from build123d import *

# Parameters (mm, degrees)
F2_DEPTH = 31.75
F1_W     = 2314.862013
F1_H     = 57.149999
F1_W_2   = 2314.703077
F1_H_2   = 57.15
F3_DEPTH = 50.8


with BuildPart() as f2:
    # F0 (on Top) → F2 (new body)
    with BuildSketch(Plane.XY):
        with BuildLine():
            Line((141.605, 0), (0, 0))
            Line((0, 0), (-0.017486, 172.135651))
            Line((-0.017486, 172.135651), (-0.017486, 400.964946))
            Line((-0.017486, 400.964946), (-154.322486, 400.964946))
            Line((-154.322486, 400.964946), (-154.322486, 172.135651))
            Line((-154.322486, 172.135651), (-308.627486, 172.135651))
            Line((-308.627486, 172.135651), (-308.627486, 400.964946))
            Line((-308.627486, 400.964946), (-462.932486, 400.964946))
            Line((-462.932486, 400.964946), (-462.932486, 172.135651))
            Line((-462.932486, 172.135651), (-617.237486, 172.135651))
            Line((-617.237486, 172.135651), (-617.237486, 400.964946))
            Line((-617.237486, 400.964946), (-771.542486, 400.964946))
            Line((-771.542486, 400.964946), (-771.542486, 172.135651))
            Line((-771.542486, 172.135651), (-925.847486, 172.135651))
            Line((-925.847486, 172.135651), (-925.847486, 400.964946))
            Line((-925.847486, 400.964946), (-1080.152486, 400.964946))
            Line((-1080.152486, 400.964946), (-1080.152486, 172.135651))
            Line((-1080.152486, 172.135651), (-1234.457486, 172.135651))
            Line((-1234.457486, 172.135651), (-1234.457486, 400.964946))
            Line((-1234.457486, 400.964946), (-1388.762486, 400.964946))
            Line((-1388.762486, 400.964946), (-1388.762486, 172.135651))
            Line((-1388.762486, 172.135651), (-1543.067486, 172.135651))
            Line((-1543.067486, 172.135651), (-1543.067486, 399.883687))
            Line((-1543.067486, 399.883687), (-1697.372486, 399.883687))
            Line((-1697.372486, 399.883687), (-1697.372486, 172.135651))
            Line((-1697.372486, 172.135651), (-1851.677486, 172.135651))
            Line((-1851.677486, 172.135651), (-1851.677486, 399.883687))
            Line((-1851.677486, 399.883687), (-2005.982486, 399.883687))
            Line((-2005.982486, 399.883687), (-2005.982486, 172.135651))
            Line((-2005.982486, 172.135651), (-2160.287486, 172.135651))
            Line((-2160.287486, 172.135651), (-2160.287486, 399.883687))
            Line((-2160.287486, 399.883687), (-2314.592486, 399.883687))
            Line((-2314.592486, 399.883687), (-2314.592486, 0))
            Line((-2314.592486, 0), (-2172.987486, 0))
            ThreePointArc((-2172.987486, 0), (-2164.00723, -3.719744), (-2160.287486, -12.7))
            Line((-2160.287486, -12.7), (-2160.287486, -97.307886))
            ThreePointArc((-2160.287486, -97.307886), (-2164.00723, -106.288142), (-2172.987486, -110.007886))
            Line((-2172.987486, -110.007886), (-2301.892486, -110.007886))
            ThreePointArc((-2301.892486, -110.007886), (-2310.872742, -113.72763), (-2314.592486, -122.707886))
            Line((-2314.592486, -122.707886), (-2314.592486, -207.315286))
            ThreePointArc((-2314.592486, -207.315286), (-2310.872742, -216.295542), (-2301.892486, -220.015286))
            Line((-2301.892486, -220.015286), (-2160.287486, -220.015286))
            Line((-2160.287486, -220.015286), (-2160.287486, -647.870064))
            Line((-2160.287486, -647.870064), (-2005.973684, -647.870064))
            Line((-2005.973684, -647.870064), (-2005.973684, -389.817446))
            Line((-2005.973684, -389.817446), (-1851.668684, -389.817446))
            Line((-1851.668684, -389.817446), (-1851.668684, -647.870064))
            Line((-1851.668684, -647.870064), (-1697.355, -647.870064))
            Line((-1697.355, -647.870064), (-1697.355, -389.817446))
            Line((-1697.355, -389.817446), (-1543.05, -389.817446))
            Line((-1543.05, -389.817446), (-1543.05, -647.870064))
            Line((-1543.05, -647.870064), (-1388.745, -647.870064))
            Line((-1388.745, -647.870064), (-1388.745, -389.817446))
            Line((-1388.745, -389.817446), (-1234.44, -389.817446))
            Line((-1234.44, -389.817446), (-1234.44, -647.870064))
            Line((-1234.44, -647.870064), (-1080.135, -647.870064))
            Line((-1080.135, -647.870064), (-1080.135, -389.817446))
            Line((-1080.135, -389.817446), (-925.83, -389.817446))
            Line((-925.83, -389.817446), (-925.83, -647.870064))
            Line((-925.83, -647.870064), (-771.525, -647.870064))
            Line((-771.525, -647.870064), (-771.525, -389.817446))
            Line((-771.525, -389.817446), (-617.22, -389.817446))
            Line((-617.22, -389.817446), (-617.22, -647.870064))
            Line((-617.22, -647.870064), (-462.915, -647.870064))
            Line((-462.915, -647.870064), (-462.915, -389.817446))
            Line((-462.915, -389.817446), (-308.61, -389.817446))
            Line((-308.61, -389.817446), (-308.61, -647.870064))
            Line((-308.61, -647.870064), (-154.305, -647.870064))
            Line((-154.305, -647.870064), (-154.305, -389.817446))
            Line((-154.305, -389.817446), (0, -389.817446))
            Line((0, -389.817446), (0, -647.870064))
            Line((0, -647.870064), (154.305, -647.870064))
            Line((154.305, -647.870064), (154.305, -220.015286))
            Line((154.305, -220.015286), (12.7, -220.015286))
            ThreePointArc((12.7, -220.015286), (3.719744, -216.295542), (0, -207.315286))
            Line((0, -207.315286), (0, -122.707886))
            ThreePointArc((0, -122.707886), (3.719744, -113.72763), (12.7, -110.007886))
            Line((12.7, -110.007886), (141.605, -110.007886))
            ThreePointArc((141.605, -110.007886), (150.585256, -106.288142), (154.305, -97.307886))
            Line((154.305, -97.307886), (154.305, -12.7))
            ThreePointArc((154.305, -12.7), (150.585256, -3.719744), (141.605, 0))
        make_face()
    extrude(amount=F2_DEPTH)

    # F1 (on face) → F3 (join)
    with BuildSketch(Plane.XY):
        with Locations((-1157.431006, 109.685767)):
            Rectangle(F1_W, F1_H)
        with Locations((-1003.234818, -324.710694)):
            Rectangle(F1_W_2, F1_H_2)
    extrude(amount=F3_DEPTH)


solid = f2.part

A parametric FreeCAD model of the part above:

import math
import FreeCAD as App
import Part
import Sketcher
from FreeCAD import Vector
Q = App.Units.Quantity


def add_polygon(sketch, points):
    """Adds a closed chain of lines whose ends are joined by coincident constraints."""
    first, n = sketch.GeometryCount, len(points)
    for a, b in zip(points, points[1:] + points[:1]):
        sketch.addGeometry(Part.LineSegment(App.Vector(*a, 0), App.Vector(*b, 0)), False)
    for i in range(n):
        sketch.addConstraint(Sketcher.Constraint("Coincident", first + i, 2, first + (i + 1) % n, 1))

doc = App.newDocument("Part")
body = doc.addObject("PartDesign::Body", "Body")

sketch1 = doc.addObject("Sketcher::SketchObject", "Sketch")
body.addObject(sketch1)
sketch1.AttachmentSupport = (doc.XY_Plane, [""])
sketch1.MapMode = "FlatFace"
sketch1.addGeometry([
    Part.LineSegment(Vector(142, 0, 0), Vector(0, 0, 0)),
    Part.LineSegment(Vector(0, 0, 0), Vector(0, 172, 0)),
    Part.LineSegment(Vector(0, 172, 0), Vector(0, 401, 0)),
    Part.LineSegment(Vector(0, 401, 0), Vector(-154, 401, 0)),
    Part.LineSegment(Vector(-154, 401, 0), Vector(-154, 172, 0)),
    Part.LineSegment(Vector(-154, 172, 0), Vector(-309, 172, 0)),
    Part.LineSegment(Vector(-309, 172, 0), Vector(-309, 401, 0)),
    Part.LineSegment(Vector(-309, 401, 0), Vector(-463, 401, 0)),
    Part.LineSegment(Vector(-463, 401, 0), Vector(-463, 172, 0)),
    Part.LineSegment(Vector(-463, 172, 0), Vector(-617, 172, 0)),
    Part.LineSegment(Vector(-617, 172, 0), Vector(-617, 401, 0)),
    Part.LineSegment(Vector(-617, 401, 0), Vector(-772, 401, 0)),
    Part.LineSegment(Vector(-772, 401, 0), Vector(-772, 172, 0)),
    Part.LineSegment(Vector(-772, 172, 0), Vector(-926, 172, 0)),
    Part.LineSegment(Vector(-926, 172, 0), Vector(-926, 401, 0)),
    Part.LineSegment(Vector(-926, 401, 0), Vector(-1080, 401, 0)),
    Part.LineSegment(Vector(-1080, 401, 0), Vector(-1080, 172, 0)),
    Part.LineSegment(Vector(-1080, 172, 0), Vector(-1234, 172, 0)),
    Part.LineSegment(Vector(-1234, 172, 0), Vector(-1234, 401, 0)),
    Part.LineSegment(Vector(-1234, 401, 0), Vector(-1389, 401, 0)),
    Part.LineSegment(Vector(-1389, 401, 0), Vector(-1389, 172, 0)),
    Part.LineSegment(Vector(-1389, 172, 0), Vector(-1543, 172, 0)),
    Part.LineSegment(Vector(-1543, 172, 0), Vector(-1543, 400, 0)),
    Part.LineSegment(Vector(-1543, 400, 0), Vector(-1697, 400, 0)),
    Part.LineSegment(Vector(-1697, 400, 0), Vector(-1697, 172, 0)),
    Part.LineSegment(Vector(-1697, 172, 0), Vector(-1852, 172, 0)),
    Part.LineSegment(Vector(-1852, 172, 0), Vector(-1852, 400, 0)),
    Part.LineSegment(Vector(-1852, 400, 0), Vector(-2006, 400, 0)),
    Part.LineSegment(Vector(-2006, 400, 0), Vector(-2006, 172, 0)),
    Part.LineSegment(Vector(-2006, 172, 0), Vector(-2160, 172, 0)),
    Part.LineSegment(Vector(-2160, 172, 0), Vector(-2160, 400, 0)),
    Part.LineSegment(Vector(-2160, 400, 0), Vector(-2315, 400, 0)),
    Part.LineSegment(Vector(-2315, 400, 0), Vector(-2315, 0, 0)),
    Part.LineSegment(Vector(-2315, 0, 0), Vector(-2173, 0, 0)),
    Part.ArcOfCircle(Part.Circle(Vector(-2173, -13, 0), Vector(0, 0, 1), 13), math.radians(0), math.radians(90)),
    Part.LineSegment(Vector(-2160, -13, 0), Vector(-2160, -97, 0)),
    Part.ArcOfCircle(Part.Circle(Vector(-2173, -97, 0), Vector(0, 0, 1), 13), math.radians(-90), math.radians(0)),
    Part.LineSegment(Vector(-2173, -110, 0), Vector(-2302, -110, 0)),
    Part.ArcOfCircle(Part.Circle(Vector(-2302, -123, 0), Vector(0, 0, 1), 13), math.radians(90), math.radians(180)),
    Part.LineSegment(Vector(-2315, -123, 0), Vector(-2315, -207, 0)),
    Part.ArcOfCircle(Part.Circle(Vector(-2302, -207, 0), Vector(0, 0, 1), 13), math.radians(-180), math.radians(-90)),
    Part.LineSegment(Vector(-2302, -220, 0), Vector(-2160, -220, 0)),
    Part.LineSegment(Vector(-2160, -220, 0), Vector(-2160, -648, 0)),
    Part.LineSegment(Vector(-2160, -648, 0), Vector(-2006, -648, 0)),
    Part.LineSegment(Vector(-2006, -648, 0), Vector(-2006, -390, 0)),
    Part.LineSegment(Vector(-2006, -390, 0), Vector(-1852, -390, 0)),
    Part.LineSegment(Vector(-1852, -390, 0), Vector(-1852, -648, 0)),
    Part.LineSegment(Vector(-1852, -648, 0), Vector(-1697, -648, 0)),
    Part.LineSegment(Vector(-1697, -648, 0), Vector(-1697, -390, 0)),
    Part.LineSegment(Vector(-1697, -390, 0), Vector(-1543, -390, 0)),
    Part.LineSegment(Vector(-1543, -390, 0), Vector(-1543, -648, 0)),
    Part.LineSegment(Vector(-1543, -648, 0), Vector(-1389, -648, 0)),
    Part.LineSegment(Vector(-1389, -648, 0), Vector(-1389, -390, 0)),
    Part.LineSegment(Vector(-1389, -390, 0), Vector(-1234, -390, 0)),
    Part.LineSegment(Vector(-1234, -390, 0), Vector(-1234, -648, 0)),
    Part.LineSegment(Vector(-1234, -648, 0), Vector(-1080, -648, 0)),
    Part.LineSegment(Vector(-1080, -648, 0), Vector(-1080, -390, 0)),
    Part.LineSegment(Vector(-1080, -390, 0), Vector(-926, -390, 0)),
    Part.LineSegment(Vector(-926, -390, 0), Vector(-926, -648, 0)),
    Part.LineSegment(Vector(-926, -648, 0), Vector(-772, -648, 0)),
    Part.LineSegment(Vector(-772, -648, 0), Vector(-772, -390, 0)),
    Part.LineSegment(Vector(-772, -390, 0), Vector(-617, -390, 0)),
    Part.LineSegment(Vector(-617, -390, 0), Vector(-617, -648, 0)),
    Part.LineSegment(Vector(-617, -648, 0), Vector(-463, -648, 0)),
    Part.LineSegment(Vector(-463, -648, 0), Vector(-463, -390, 0)),
    Part.LineSegment(Vector(-463, -390, 0), Vector(-309, -390, 0)),
    Part.LineSegment(Vector(-309, -390, 0), Vector(-309, -648, 0)),
    Part.LineSegment(Vector(-309, -648, 0), Vector(-154, -648, 0)),
    Part.LineSegment(Vector(-154, -648, 0), Vector(-154, -390, 0)),
    Part.LineSegment(Vector(-154, -390, 0), Vector(0, -390, 0)),
    Part.LineSegment(Vector(0, -390, 0), Vector(0, -648, 0)),
    Part.LineSegment(Vector(0, -648, 0), Vector(154, -648, 0)),
    Part.LineSegment(Vector(154, -648, 0), Vector(154, -220, 0)),
    Part.LineSegment(Vector(154, -220, 0), Vector(13, -220, 0)),
    Part.ArcOfCircle(Part.Circle(Vector(13, -207, 0), Vector(0, 0, 1), 13), math.radians(-180), math.radians(-90)),
    Part.LineSegment(Vector(0, -207, 0), Vector(0, -123, 0)),
    Part.ArcOfCircle(Part.Circle(Vector(13, -123, 0), Vector(0, 0, 1), 13), math.radians(90), math.radians(180)),
    Part.LineSegment(Vector(13, -110, 0), Vector(142, -110, 0)),
    Part.ArcOfCircle(Part.Circle(Vector(142, -97, 0), Vector(0, 0, 1), 13), math.radians(-90), math.radians(0)),
    Part.LineSegment(Vector(154, -97, 0), Vector(154, -13, 0)),
    Part.ArcOfCircle(Part.Circle(Vector(142, -13, 0), Vector(0, 0, 1), 13), math.radians(0), math.radians(90)),
], False)
sketch1.addConstraint([
    Sketcher.Constraint("Coincident", 0, 2, 1, 1),
    Sketcher.Constraint("Coincident", 1, 2, 2, 1),
    Sketcher.Constraint("Coincident", 2, 2, 3, 1),
    Sketcher.Constraint("Coincident", 3, 2, 4, 1),
    Sketcher.Constraint("Coincident", 4, 2, 5, 1),
    Sketcher.Constraint("Coincident", 5, 2, 6, 1),
    Sketcher.Constraint("Coincident", 6, 2, 7, 1),
    Sketcher.Constraint("Coincident", 7, 2, 8, 1),
    Sketcher.Constraint("Coincident", 8, 2, 9, 1),
    Sketcher.Constraint("Coincident", 9, 2, 10, 1),
    Sketcher.Constraint("Coincident", 10, 2, 11, 1),
    Sketcher.Constraint("Coincident", 11, 2, 12, 1),
    Sketcher.Constraint("Coincident", 12, 2, 13, 1),
    Sketcher.Constraint("Coincident", 13, 2, 14, 1),
    Sketcher.Constraint("Coincident", 14, 2, 15, 1),
    Sketcher.Constraint("Coincident", 15, 2, 16, 1),
    Sketcher.Constraint("Coincident", 16, 2, 17, 1),
    Sketcher.Constraint("Coincident", 17, 2, 18, 1),
    Sketcher.Constraint("Coincident", 18, 2, 19, 1),
    Sketcher.Constraint("Coincident", 19, 2, 20, 1),
    Sketcher.Constraint("Coincident", 20, 2, 21, 1),
    Sketcher.Constraint("Coincident", 21, 2, 22, 1),
    Sketcher.Constraint("Coincident", 22, 2, 23, 1),
    Sketcher.Constraint("Coincident", 23, 2, 24, 1),
    Sketcher.Constraint("Coincident", 24, 2, 25, 1),
    Sketcher.Constraint("Coincident", 25, 2, 26, 1),
    Sketcher.Constraint("Coincident", 26, 2, 27, 1),
    Sketcher.Constraint("Coincident", 27, 2, 28, 1),
    Sketcher.Constraint("Coincident", 28, 2, 29, 1),
    Sketcher.Constraint("Coincident", 29, 2, 30, 1),
    Sketcher.Constraint("Coincident", 30, 2, 31, 1),
    Sketcher.Constraint("Coincident", 31, 2, 32, 1),
    Sketcher.Constraint("Coincident", 32, 2, 33, 1),
    Sketcher.Constraint("Tangent", 33, 2, 34, 2),
    Sketcher.Constraint("Tangent", 34, 1, 35, 1),
    Sketcher.Constraint("Tangent", 35, 2, 36, 2),
    Sketcher.Constraint("Tangent", 36, 1, 37, 1),
    Sketcher.Constraint("Tangent", 37, 2, 38, 1),
    Sketcher.Constraint("Tangent", 38, 2, 39, 1),
    Sketcher.Constraint("Tangent", 39, 2, 40, 1),
    Sketcher.Constraint("Tangent", 40, 2, 41, 1),
    Sketcher.Constraint("Coincident", 41, 2, 42, 1),
    Sketcher.Constraint("Coincident", 42, 2, 43, 1),
    Sketcher.Constraint("Coincident", 43, 2, 44, 1),
    Sketcher.Constraint("Coincident", 44, 2, 45, 1),
    Sketcher.Constraint("Coincident", 45, 2, 46, 1),
    Sketcher.Constraint("Coincident", 46, 2, 47, 1),
    Sketcher.Constraint("Coincident", 47, 2, 48, 1),
    Sketcher.Constraint("Coincident", 48, 2, 49, 1),
    Sketcher.Constraint("Coincident", 49, 2, 50, 1),
    Sketcher.Constraint("Coincident", 50, 2, 51, 1),
    Sketcher.Constraint("Coincident", 51, 2, 52, 1),
    Sketcher.Constraint("Coincident", 52, 2, 53, 1),
    Sketcher.Constraint("Coincident", 53, 2, 54, 1),
    Sketcher.Constraint("Coincident", 54, 2, 55, 1),
    Sketcher.Constraint("Coincident", 55, 2, 56, 1),
    Sketcher.Constraint("Coincident", 56, 2, 57, 1),
    Sketcher.Constraint("Coincident", 57, 2, 58, 1),
    Sketcher.Constraint("Coincident", 58, 2, 59, 1),
    Sketcher.Constraint("Coincident", 59, 2, 60, 1),
    Sketcher.Constraint("Coincident", 60, 2, 61, 1),
    Sketcher.Constraint("Coincident", 61, 2, 62, 1),
    Sketcher.Constraint("Coincident", 62, 2, 63, 1),
    Sketcher.Constraint("Coincident", 63, 2, 64, 1),
    Sketcher.Constraint("Coincident", 64, 2, 65, 1),
    Sketcher.Constraint("Coincident", 65, 2, 66, 1),
    Sketcher.Constraint("Coincident", 66, 2, 67, 1),
    Sketcher.Constraint("Coincident", 67, 2, 68, 1),
    Sketcher.Constraint("Coincident", 68, 2, 69, 1),
    Sketcher.Constraint("Coincident", 69, 2, 70, 1),
    Sketcher.Constraint("Coincident", 70, 2, 71, 1),
    Sketcher.Constraint("Coincident", 71, 2, 72, 1),
    Sketcher.Constraint("Coincident", 72, 2, 73, 1),
    Sketcher.Constraint("Tangent", 73, 2, 74, 2),
    Sketcher.Constraint("Tangent", 74, 1, 75, 1),
    Sketcher.Constraint("Tangent", 75, 2, 76, 2),
    Sketcher.Constraint("Tangent", 76, 1, 77, 1),
    Sketcher.Constraint("Tangent", 77, 2, 78, 1),
    Sketcher.Constraint("Tangent", 78, 2, 79, 1),
    Sketcher.Constraint("Tangent", 79, 2, 80, 1),
    Sketcher.Constraint("Tangent", 80, 2, 0, 1),
    Sketcher.Constraint("Horizontal", 0),
    Sketcher.Constraint("Vertical", 2),
    Sketcher.Constraint("Horizontal", 3),
    Sketcher.Constraint("Vertical", 4),
    Sketcher.Constraint("Horizontal", 5),
    Sketcher.Constraint("Vertical", 6),
    Sketcher.Constraint("Horizontal", 7),
    Sketcher.Constraint("Vertical", 8),
    Sketcher.Constraint("Horizontal", 9),
    Sketcher.Constraint("Vertical", 10),
    Sketcher.Constraint("Horizontal", 11),
    Sketcher.Constraint("Vertical", 12),
    Sketcher.Constraint("Horizontal", 13),
    Sketcher.Constraint("Vertical", 14),
    Sketcher.Constraint("Horizontal", 15),
    Sketcher.Constraint("Vertical", 16),
    Sketcher.Constraint("Horizontal", 17),
    Sketcher.Constraint("Vertical", 18),
    Sketcher.Constraint("Horizontal", 19),
    Sketcher.Constraint("Vertical", 20),
    Sketcher.Constraint("Horizontal", 21),
    Sketcher.Constraint("Vertical", 22),
    Sketcher.Constraint("Horizontal", 23),
    Sketcher.Constraint("Vertical", 24),
    Sketcher.Constraint("Horizontal", 25),
    Sketcher.Constraint("Vertical", 26),
    Sketcher.Constraint("Horizontal", 27),
    Sketcher.Constraint("Vertical", 28),
    Sketcher.Constraint("Horizontal", 29),
    Sketcher.Constraint("Vertical", 30),
    Sketcher.Constraint("Horizontal", 31),
    Sketcher.Constraint("Vertical", 32),
    Sketcher.Constraint("Horizontal", 33),
    Sketcher.Constraint("Vertical", 35),
    Sketcher.Constraint("Horizontal", 37),
    Sketcher.Constraint("Vertical", 39),
    Sketcher.Constraint("Horizontal", 41),
    Sketcher.Constraint("Vertical", 42),
    Sketcher.Constraint("Horizontal", 43),
    Sketcher.Constraint("Vertical", 44),
    Sketcher.Constraint("Horizontal", 45),
    Sketcher.Constraint("Vertical", 46),
    Sketcher.Constraint("Horizontal", 47),
    Sketcher.Constraint("Vertical", 48),
    Sketcher.Constraint("Horizontal", 49),
    Sketcher.Constraint("Vertical", 50),
    Sketcher.Constraint("Horizontal", 51),
    Sketcher.Constraint("Vertical", 52),
    Sketcher.Constraint("Horizontal", 53),
    Sketcher.Constraint("Vertical", 54),
    Sketcher.Constraint("Horizontal", 55),
    Sketcher.Constraint("Vertical", 56),
    Sketcher.Constraint("Horizontal", 57),
    Sketcher.Constraint("Vertical", 58),
    Sketcher.Constraint("Horizontal", 59),
    Sketcher.Constraint("Vertical", 60),
    Sketcher.Constraint("Horizontal", 61),
    Sketcher.Constraint("Vertical", 62),
    Sketcher.Constraint("Horizontal", 63),
    Sketcher.Constraint("Vertical", 64),
    Sketcher.Constraint("Horizontal", 65),
    Sketcher.Constraint("Vertical", 66),
    Sketcher.Constraint("Horizontal", 67),
    Sketcher.Constraint("Vertical", 68),
    Sketcher.Constraint("Horizontal", 69),
    Sketcher.Constraint("Vertical", 70),
    Sketcher.Constraint("Horizontal", 71),
    Sketcher.Constraint("Vertical", 72),
    Sketcher.Constraint("Horizontal", 73),
    Sketcher.Constraint("Vertical", 75),
    Sketcher.Constraint("Horizontal", 77),
    Sketcher.Constraint("Vertical", 79),
    Sketcher.Constraint("Coincident", 0, 2, -1, 1),
    Sketcher.Constraint("Equal", 34, 36),
    Sketcher.Constraint("Equal", 36, 38),
    Sketcher.Constraint("Equal", 38, 40),
    Sketcher.Constraint("Equal", 40, 74),
    Sketcher.Constraint("Equal", 74, 76),
    Sketcher.Constraint("Equal", 76, 78),
    Sketcher.Constraint("Equal", 78, 80),
    Sketcher.Constraint("Symmetric", 67, 2, 71, 2, -2),
    Sketcher.Constraint("PointOnObject", 32, 2, -1),
    Sketcher.Constraint("PointOnObject", 69, 2, -2),
    Sketcher.Constraint("PointOnObject", 74, 1, -2),
    Sketcher.Constraint("Horizontal", 40, 3, 74, 3),
    Sketcher.Constraint("Horizontal", 38, 3, 76, 3),
    Sketcher.Constraint("Horizontal", 1, 2, 4, 2),
    Sketcher.Constraint("Horizontal", 3, 2, 6, 2),
    Sketcher.Constraint("Horizontal", 5, 2, 8, 2),
    Sketcher.Constraint("Horizontal", 7, 2, 10, 2),
    Sketcher.Constraint("Horizontal", 9, 2, 12, 2),
    Sketcher.Constraint("Horizontal", 11, 2, 14, 2),
    Sketcher.Constraint("Horizontal", 13, 2, 16, 2),
    Sketcher.Constraint("Horizontal", 15, 2, 18, 2),
    Sketcher.Constraint("Horizontal", 17, 2, 20, 2),
    Sketcher.Constraint("Horizontal", 21, 2, 24, 2),
    Sketcher.Constraint("Horizontal", 23, 2, 26, 2),
    Sketcher.Constraint("Horizontal", 25, 2, 28, 2),
    Sketcher.Constraint("Horizontal", 27, 2, 30, 2),
    Sketcher.Constraint("Horizontal", 43, 2, 46, 2),
    Sketcher.Constraint("Horizontal", 45, 2, 48, 2),
    Sketcher.Constraint("Horizontal", 47, 2, 50, 2),
    Sketcher.Constraint("Horizontal", 49, 2, 52, 2),
    Sketcher.Constraint("Horizontal", 51, 2, 54, 2),
    Sketcher.Constraint("Horizontal", 53, 2, 56, 2),
    Sketcher.Constraint("Horizontal", 55, 2, 58, 2),
    Sketcher.Constraint("Horizontal", 57, 2, 60, 2),
    Sketcher.Constraint("Horizontal", 59, 2, 62, 2),
    Sketcher.Constraint("Horizontal", 61, 2, 64, 2),
    Sketcher.Constraint("Horizontal", 63, 2, 66, 2),
    Sketcher.Constraint("Horizontal", 65, 2, 68, 2),
    Sketcher.Constraint("Vertical", 30, 2, 34, 1),
    Sketcher.Constraint("Vertical", 32, 2, 38, 2),
    Sketcher.Constraint("Vertical", 35, 2, 41, 2),
    Sketcher.Constraint("Vertical", 72, 2, 78, 2),
    Sketcher.Constraint("Equal", 3, 5),
    Sketcher.Constraint("Equal", 5, 7),
    Sketcher.Constraint("Equal", 7, 9),
    Sketcher.Constraint("Equal", 9, 11),
    Sketcher.Constraint("Equal", 11, 13),
    Sketcher.Constraint("Equal", 13, 15),
    Sketcher.Constraint("Equal", 15, 17),
    Sketcher.Constraint("Equal", 17, 19),
    Sketcher.Constraint("Equal", 19, 21),
    Sketcher.Constraint("Equal", 21, 23),
    Sketcher.Constraint("Equal", 23, 25),
    Sketcher.Constraint("Equal", 25, 27),
    Sketcher.Constraint("Equal", 27, 29),
    Sketcher.Constraint("Equal", 29, 31),
    Sketcher.Constraint("Equal", 0, 33),
    Sketcher.Constraint("Equal", 31, 45),
    Sketcher.Constraint("Equal", 45, 49),
    Sketcher.Constraint("Equal", 49, 51),
    Sketcher.Constraint("Equal", 51, 53),
    Sketcher.Constraint("Equal", 53, 55),
    Sketcher.Constraint("Equal", 55, 57),
    Sketcher.Constraint("Equal", 57, 59),
    Sketcher.Constraint("Equal", 59, 61),
    Sketcher.Constraint("Equal", 61, 63),
    Sketcher.Constraint("Equal", 63, 65),
    Sketcher.Constraint("Equal", 65, 67),
    Sketcher.Constraint("Radius", 34, Q("0.5 in")),
    Sketcher.Constraint("DistanceX", 53, 2, -1, 1, Q("48.6 in")),
    Sketcher.Constraint("DistanceY", 39, 2, 39, 1, Q("3.331 in")),
    Sketcher.Constraint("Distance", 1, Q("172.135652 mm")),
    Sketcher.Constraint("DistanceX", 43, 1, 43, 2, Q("154.313802 mm")),
    Sketcher.Constraint("DistanceX", 47, 1, 47, 2, Q("154.313684 mm")),
    Sketcher.Constraint("DistanceY", 2, 1, 2, 2, Q("228.829295 mm")),
    Sketcher.Constraint("DistanceY", 22, 1, 22, 2, Q("227.748036 mm")),
    Sketcher.Constraint("DistanceY", 35, 2, 35, 1, Q("84.607886 mm")),
    Sketcher.Constraint("DistanceY", 42, 2, 42, 1, Q("427.854778 mm")),
    Sketcher.Constraint("DistanceY", 44, 1, 44, 2, Q("258.052618 mm")),
])
pad1 = doc.addObject("PartDesign::Pad", "Pad")
body.addObject(pad1)
pad1.Profile = sketch1
pad1.Length = Q("1.25 in")

sketch2 = doc.addObject("Sketcher::SketchObject", "Sketch001")
body.addObject(sketch2)
sketch2.AttachmentSupport = (doc.XY_Plane, [""])
sketch2.MapMode = "FlatFace"
add_polygon(sketch2, [(-2315, 138), (-2315, 81), (0, 81), (0, 138)])
add_polygon(sketch2, [(-2161, -296), (-2161, -353), (154, -353), (154, -296)])
sketch2.addConstraint([
    Sketcher.Constraint("Vertical", 0),
    Sketcher.Constraint("Horizontal", 1),
    Sketcher.Constraint("Vertical", 2),
    Sketcher.Constraint("Horizontal", 3),
    Sketcher.Constraint("Vertical", 4),
    Sketcher.Constraint("Horizontal", 5),
    Sketcher.Constraint("Vertical", 6),
    Sketcher.Constraint("Horizontal", 7),
    Sketcher.Constraint("PointOnObject", 1, 2, -2),
    Sketcher.Constraint("Equal", 2, 4),
    Sketcher.Constraint("DistanceY", 0, 2, 0, 1, Q("2.25 in")),
    Sketcher.Constraint("DistanceX", 1, 1, 1, 2, Q("2314.862013 mm")),
    Sketcher.Constraint("DistanceX", 5, 1, 5, 2, Q("2314.703077 mm")),
    Sketcher.Constraint("DistanceX", -1, 1, 5, 2, Q("154.116721 mm")),
    Sketcher.Constraint("DistanceY", 4, 2, 0, 2, Q("434.396461 mm")),
    Sketcher.Constraint("DistanceY", -1, 1, 0, 2, Q("81.110767 mm")),
])
pad2 = doc.addObject("PartDesign::Pad", "Pad001")
body.addObject(pad2)
pad2.Profile = sketch2
pad2.Length = Q("2 in")

doc.recompute()
